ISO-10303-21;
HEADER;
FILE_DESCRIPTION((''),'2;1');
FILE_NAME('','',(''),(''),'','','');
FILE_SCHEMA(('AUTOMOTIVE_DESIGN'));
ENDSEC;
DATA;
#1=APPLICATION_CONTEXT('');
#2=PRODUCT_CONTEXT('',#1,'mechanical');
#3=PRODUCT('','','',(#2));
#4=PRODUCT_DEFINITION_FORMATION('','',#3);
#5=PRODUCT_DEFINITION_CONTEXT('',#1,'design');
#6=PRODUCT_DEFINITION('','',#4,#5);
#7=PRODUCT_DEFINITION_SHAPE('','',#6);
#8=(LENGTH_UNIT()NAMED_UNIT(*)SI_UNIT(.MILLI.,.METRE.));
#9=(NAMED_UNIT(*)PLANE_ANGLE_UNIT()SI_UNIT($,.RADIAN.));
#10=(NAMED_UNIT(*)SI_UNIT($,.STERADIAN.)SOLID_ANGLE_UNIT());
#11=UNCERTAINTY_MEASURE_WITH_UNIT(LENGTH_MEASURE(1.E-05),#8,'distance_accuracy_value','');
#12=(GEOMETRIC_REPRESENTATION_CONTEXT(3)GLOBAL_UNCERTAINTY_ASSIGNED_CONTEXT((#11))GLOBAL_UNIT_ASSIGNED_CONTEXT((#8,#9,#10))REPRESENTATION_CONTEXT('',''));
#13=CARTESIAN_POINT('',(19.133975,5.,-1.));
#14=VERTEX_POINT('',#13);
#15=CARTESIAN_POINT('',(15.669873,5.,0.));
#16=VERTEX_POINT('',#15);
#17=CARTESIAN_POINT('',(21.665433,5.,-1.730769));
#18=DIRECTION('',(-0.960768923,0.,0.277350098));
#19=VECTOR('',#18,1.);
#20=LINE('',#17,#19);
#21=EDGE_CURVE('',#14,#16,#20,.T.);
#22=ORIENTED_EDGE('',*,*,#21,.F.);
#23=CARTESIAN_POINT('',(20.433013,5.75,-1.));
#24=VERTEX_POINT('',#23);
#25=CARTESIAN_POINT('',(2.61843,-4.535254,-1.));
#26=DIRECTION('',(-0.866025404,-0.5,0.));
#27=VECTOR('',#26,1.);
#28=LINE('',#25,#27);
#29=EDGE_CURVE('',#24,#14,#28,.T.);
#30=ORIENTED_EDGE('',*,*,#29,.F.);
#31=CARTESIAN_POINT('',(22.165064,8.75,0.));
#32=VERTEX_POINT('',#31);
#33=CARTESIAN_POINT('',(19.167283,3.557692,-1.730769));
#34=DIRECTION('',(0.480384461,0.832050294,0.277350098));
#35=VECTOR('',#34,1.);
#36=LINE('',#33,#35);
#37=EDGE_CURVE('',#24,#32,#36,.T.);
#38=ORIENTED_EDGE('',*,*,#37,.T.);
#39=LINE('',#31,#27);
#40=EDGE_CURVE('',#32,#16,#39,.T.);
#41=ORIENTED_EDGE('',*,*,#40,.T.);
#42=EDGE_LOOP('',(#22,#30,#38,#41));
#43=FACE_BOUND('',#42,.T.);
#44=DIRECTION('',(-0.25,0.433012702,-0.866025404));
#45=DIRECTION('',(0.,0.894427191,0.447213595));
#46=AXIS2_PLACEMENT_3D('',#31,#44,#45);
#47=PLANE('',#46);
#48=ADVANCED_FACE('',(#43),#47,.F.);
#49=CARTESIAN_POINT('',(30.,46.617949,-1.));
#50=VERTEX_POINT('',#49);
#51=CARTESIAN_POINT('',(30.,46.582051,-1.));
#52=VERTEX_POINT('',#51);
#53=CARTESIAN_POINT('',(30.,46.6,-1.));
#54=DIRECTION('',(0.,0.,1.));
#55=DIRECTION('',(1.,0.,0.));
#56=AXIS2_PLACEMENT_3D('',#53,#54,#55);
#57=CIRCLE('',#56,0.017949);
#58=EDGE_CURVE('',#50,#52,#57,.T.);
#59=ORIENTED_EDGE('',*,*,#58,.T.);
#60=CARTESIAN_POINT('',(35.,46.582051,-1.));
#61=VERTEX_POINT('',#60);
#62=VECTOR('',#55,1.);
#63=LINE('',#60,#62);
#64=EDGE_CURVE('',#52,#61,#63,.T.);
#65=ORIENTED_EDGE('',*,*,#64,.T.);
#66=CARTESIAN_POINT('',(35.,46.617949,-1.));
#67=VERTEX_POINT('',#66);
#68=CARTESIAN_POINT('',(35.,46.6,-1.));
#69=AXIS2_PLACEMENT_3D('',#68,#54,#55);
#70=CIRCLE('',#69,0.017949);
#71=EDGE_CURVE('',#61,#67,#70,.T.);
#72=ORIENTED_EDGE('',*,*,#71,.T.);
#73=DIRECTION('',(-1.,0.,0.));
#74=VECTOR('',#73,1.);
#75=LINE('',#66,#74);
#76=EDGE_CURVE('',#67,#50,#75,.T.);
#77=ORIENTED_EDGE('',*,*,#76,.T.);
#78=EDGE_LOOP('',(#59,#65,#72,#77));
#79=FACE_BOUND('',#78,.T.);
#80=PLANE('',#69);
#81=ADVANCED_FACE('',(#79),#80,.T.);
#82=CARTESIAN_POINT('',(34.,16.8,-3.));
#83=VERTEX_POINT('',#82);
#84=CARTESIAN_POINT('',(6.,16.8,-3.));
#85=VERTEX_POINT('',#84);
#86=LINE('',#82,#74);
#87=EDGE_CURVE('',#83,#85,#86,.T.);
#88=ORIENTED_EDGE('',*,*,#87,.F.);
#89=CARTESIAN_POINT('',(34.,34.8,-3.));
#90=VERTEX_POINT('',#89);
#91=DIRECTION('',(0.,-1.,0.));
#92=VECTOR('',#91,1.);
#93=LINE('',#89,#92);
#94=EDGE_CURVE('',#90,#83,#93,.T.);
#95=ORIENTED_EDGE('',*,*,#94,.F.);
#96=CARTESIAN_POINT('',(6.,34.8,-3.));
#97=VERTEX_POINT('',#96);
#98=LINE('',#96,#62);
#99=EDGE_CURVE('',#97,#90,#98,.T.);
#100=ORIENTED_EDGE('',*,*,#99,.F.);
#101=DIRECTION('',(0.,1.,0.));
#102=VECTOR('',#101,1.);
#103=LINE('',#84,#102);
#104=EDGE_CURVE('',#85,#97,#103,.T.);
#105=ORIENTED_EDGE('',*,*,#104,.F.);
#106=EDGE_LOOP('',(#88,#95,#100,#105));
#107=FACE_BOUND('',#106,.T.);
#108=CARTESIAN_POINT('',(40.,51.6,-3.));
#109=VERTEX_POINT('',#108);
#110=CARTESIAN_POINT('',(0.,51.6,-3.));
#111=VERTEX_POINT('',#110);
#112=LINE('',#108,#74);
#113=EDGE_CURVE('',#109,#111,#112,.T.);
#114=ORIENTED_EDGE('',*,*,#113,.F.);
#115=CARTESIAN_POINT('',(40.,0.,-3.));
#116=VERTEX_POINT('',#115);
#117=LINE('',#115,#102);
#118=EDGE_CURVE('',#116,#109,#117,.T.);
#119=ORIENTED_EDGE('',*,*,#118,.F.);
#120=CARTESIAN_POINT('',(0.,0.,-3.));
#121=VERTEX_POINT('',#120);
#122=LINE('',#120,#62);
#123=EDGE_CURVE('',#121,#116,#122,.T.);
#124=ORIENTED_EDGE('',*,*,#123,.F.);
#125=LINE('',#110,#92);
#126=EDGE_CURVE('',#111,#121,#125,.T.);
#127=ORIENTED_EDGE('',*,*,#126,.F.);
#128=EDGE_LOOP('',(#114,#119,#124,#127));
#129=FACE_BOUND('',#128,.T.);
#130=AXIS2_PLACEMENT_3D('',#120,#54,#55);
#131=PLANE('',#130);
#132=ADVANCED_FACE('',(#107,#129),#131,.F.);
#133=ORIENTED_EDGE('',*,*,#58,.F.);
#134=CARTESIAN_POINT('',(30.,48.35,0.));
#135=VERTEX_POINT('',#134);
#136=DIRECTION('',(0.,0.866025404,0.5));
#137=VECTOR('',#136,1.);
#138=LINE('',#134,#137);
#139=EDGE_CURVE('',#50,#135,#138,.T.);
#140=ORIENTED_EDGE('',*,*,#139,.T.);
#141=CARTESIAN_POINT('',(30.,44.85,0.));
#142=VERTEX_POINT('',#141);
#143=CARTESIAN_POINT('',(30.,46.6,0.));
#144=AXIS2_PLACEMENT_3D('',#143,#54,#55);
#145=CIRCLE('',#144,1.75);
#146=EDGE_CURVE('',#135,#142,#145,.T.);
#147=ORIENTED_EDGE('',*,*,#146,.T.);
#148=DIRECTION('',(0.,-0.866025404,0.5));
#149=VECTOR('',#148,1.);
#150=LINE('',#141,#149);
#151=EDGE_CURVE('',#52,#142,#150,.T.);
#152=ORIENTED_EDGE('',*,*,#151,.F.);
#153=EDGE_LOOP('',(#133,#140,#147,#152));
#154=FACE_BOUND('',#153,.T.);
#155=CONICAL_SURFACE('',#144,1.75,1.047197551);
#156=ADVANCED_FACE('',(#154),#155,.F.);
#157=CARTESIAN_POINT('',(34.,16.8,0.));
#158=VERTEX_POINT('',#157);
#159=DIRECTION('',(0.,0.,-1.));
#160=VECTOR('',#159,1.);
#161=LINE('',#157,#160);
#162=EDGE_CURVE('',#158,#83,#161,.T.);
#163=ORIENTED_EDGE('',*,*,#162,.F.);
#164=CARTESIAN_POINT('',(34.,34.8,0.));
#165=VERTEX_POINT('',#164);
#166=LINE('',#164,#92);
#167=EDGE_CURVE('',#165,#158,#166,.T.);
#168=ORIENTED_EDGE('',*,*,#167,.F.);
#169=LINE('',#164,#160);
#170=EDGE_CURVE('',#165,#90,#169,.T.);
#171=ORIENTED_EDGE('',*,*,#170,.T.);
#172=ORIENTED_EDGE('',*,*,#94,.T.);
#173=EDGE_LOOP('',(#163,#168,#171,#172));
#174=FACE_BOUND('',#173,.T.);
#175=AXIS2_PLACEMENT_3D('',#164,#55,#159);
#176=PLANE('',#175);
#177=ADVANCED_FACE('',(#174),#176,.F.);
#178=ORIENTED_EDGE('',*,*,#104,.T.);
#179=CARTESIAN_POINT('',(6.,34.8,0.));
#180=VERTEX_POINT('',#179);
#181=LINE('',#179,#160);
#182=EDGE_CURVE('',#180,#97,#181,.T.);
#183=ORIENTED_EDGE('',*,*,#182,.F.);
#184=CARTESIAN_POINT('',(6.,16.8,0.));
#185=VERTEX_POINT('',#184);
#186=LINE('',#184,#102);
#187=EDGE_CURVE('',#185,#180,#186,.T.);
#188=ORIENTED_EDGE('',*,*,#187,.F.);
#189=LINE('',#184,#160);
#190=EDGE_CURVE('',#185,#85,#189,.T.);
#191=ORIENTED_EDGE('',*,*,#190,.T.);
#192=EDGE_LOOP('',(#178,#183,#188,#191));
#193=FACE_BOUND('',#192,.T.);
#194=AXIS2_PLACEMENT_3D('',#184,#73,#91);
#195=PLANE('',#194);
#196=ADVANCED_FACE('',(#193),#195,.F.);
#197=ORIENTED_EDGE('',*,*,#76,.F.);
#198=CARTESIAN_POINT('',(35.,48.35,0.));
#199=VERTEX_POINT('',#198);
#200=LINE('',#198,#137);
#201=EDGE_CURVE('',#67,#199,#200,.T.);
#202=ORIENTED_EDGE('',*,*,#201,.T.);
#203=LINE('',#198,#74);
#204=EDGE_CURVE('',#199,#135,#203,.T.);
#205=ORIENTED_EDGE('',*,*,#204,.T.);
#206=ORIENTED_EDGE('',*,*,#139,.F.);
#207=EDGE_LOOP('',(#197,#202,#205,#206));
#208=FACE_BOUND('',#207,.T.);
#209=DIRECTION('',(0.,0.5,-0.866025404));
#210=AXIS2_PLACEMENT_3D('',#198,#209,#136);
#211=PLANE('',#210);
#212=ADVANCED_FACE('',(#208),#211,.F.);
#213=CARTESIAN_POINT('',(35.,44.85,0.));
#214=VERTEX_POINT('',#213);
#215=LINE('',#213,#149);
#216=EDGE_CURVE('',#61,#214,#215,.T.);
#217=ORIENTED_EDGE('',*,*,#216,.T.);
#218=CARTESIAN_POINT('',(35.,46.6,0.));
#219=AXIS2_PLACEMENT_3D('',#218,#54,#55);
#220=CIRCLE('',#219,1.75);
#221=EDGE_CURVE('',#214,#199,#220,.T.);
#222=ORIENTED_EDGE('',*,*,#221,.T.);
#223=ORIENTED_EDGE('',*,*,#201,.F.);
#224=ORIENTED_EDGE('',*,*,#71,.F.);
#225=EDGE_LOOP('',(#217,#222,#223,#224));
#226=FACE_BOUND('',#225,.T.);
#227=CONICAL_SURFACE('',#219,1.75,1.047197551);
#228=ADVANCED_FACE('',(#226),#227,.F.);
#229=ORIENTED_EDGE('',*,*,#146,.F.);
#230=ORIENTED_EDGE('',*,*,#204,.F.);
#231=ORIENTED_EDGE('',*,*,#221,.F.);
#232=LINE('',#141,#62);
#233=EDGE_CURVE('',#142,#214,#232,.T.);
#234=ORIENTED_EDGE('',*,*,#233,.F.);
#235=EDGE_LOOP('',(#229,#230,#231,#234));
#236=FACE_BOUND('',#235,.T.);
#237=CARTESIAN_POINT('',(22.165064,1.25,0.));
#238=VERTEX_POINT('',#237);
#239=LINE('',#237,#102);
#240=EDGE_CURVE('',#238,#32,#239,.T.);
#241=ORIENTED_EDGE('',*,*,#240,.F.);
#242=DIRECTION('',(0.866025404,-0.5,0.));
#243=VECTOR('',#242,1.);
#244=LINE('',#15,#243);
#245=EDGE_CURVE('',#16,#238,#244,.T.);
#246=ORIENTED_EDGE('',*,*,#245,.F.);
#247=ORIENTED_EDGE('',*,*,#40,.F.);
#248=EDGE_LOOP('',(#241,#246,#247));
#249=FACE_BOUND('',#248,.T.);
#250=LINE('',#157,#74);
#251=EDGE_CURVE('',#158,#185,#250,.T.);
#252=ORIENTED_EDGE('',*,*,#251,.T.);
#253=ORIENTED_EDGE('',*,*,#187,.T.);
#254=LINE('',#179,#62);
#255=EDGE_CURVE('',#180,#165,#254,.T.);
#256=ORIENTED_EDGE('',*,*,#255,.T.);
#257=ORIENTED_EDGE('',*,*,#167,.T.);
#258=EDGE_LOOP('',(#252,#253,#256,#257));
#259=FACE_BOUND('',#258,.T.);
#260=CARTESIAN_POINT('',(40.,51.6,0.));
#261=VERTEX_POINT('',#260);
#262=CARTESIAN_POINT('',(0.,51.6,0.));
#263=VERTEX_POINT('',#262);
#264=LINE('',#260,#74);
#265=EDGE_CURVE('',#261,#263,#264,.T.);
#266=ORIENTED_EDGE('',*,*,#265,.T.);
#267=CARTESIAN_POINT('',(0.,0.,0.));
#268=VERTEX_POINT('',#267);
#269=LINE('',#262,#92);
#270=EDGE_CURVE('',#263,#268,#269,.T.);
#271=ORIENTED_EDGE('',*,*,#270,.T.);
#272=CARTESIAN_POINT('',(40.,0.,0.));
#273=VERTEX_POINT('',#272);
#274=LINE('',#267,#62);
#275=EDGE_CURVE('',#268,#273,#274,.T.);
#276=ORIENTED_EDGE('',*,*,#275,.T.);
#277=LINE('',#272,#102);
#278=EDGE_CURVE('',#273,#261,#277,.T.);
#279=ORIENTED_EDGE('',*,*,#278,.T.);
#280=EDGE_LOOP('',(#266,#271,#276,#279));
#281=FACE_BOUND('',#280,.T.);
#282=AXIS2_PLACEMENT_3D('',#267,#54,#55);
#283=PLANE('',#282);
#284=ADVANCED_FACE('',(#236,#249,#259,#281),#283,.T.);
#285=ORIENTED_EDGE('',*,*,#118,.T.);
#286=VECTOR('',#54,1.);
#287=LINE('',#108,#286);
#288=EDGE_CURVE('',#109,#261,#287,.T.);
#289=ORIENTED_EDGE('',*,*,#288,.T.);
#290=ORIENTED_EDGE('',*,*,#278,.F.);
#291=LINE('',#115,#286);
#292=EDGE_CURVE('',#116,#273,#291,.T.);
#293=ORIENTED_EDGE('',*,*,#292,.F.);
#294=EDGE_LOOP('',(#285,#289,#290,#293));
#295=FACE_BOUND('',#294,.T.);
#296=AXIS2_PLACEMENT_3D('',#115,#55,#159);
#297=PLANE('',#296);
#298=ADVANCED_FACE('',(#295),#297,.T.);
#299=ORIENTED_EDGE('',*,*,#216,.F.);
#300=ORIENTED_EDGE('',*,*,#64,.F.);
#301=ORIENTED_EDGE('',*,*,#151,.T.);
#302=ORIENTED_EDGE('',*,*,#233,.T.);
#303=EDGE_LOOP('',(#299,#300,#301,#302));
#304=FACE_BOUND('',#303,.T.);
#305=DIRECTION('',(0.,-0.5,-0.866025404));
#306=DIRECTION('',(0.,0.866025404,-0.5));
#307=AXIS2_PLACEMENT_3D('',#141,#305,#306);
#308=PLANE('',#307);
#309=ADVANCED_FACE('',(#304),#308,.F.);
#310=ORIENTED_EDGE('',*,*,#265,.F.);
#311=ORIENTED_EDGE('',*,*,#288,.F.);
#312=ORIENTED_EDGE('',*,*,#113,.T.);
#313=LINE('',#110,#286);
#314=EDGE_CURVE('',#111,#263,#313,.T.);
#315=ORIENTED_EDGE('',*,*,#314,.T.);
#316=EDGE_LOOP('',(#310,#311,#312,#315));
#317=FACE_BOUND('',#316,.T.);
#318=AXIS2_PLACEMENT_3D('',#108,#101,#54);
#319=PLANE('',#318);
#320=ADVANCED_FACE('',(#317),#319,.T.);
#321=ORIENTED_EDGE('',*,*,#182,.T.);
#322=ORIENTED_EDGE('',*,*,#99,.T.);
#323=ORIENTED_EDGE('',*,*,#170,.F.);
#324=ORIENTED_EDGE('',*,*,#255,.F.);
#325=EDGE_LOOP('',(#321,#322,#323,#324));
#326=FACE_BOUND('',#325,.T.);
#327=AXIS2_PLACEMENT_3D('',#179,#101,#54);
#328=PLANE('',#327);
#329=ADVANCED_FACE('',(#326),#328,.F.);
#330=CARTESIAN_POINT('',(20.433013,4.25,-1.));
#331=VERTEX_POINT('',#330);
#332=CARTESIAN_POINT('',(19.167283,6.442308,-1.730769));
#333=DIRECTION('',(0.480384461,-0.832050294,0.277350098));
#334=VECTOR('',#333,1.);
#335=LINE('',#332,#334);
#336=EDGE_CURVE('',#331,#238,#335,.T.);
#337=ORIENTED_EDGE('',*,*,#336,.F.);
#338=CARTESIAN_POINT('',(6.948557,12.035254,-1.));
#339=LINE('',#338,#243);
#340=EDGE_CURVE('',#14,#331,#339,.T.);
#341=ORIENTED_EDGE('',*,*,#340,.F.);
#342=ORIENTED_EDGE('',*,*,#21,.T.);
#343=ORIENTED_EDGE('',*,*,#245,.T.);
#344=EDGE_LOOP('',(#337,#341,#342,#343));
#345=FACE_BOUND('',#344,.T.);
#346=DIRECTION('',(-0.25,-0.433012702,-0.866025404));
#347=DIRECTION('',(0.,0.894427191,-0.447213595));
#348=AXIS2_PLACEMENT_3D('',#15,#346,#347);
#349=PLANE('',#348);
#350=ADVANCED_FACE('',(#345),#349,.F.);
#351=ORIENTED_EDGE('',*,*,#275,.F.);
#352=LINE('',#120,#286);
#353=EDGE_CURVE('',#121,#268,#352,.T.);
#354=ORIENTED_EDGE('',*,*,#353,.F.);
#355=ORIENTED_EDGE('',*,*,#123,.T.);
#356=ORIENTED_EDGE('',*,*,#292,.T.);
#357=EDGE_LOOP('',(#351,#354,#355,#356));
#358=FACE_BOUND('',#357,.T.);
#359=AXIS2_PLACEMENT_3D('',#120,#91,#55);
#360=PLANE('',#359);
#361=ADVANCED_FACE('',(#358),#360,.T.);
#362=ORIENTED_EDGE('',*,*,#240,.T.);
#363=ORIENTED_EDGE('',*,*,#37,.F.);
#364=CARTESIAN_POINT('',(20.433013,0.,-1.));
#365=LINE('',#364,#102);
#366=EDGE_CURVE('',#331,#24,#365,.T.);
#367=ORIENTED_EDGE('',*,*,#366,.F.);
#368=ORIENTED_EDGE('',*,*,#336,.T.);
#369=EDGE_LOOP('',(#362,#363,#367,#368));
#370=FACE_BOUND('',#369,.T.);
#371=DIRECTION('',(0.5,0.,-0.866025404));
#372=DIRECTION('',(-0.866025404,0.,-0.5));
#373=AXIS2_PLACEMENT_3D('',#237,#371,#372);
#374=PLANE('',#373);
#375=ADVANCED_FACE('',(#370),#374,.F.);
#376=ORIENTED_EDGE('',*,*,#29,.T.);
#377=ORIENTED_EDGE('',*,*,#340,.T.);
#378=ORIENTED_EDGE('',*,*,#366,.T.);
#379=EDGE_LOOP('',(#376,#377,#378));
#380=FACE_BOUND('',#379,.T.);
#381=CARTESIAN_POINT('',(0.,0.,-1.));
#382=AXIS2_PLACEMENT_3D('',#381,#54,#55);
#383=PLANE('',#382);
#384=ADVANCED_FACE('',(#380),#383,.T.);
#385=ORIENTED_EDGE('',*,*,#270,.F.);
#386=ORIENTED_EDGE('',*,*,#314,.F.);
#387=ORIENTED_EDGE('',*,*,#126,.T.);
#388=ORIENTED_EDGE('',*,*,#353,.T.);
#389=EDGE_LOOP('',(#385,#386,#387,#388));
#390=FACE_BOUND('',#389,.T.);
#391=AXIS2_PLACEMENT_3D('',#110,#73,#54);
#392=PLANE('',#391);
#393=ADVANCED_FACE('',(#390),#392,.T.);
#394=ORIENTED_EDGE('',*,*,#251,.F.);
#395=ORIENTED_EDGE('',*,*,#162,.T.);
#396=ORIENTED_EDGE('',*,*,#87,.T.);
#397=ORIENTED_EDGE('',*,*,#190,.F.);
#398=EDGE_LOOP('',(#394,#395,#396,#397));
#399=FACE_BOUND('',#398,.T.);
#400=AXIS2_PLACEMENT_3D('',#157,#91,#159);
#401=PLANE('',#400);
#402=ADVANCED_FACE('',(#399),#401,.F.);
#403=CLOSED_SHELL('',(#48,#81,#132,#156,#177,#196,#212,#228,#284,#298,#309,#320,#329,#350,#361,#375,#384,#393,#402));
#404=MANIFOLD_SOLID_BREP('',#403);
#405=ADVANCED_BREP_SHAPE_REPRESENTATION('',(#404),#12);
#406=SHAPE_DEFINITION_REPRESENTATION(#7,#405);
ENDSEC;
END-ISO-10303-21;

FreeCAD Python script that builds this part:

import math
import FreeCAD as App
import Part
import Sketcher
from FreeCAD import Vector
Q = App.Units.Quantity


def faces_at(feature, points):
    """Names of the faces that lie closest to the given points."""
    faces = feature.Shape.Faces
    near = lambda p: min(range(len(faces)), key=lambda i: faces[i].distToShape(Part.Vertex(*p))[0])
    return sorted({f"Face{near(p) + 1}" for p in points})

doc = App.newDocument("Part")
params = doc.addObject("Spreadsheet::Sheet", "Params")
for row, (alias, value) in enumerate([
    ("sketch1_width", "40 mm"),
    ("sketch1_height", "51.6 mm"),
    ("pad1_length", "3 mm"),
    ("sketch2_width", "28 mm"),
    ("sketch2_height", "18 mm"),
    ("sketch3_width", "5 mm"),
    ("sketch3_radius", "1.75 mm"),
    ("pad2_length", "1 mm"),
    ("draft_angle", "60 deg"),
    ("sketch4_height", "7.5 mm"),
    ("pad3_length", "1 mm"),
    ("draft2_angle", "60 deg"),
], start=1):
    params.set(f"A{row}", alias)
    params.set(f"B{row}", "=" + value)
    params.setAlias(f"B{row}", alias)

body = doc.addObject("PartDesign::Body", "Body")

# Sketch on XY plane
sketch1 = body.newObject("Sketcher::SketchObject", "Sketch")
sketch1.AttachmentSupport = (doc.getObject("XY_Plane"), [""])
sketch1.MapMode = "FlatFace"
sketch1.addGeometry([
    Part.LineSegment(Vector(0, 52, 0), Vector(0, 0, 0)),
    Part.LineSegment(Vector(0, 0, 0), Vector(40, 0, 0)),
    Part.LineSegment(Vector(40, 0, 0), Vector(40, 52, 0)),
    Part.LineSegment(Vector(40, 52, 0), Vector(0, 52, 0)),
], False)
sketch1.addConstraint([
    Sketcher.Constraint("Coincident", 0, 2, 1, 1),
    Sketcher.Constraint("Coincident", 1, 2, 2, 1),
    Sketcher.Constraint("Coincident", 2, 2, 3, 1),
    Sketcher.Constraint("Coincident", 3, 2, 0, 1),
    Sketcher.Constraint("Vertical", 0),
    Sketcher.Constraint("Horizontal", 1),
    Sketcher.Constraint("Vertical", 2),
    Sketcher.Constraint("Horizontal", 3),
    Sketcher.Constraint("Coincident", 0, 2, -1, 1),
    Sketcher.Constraint("DistanceX", 1, 1, 1, 2, Q("40 mm")),
    Sketcher.Constraint("DistanceY", 0, 2, 0, 1, Q("51.6 mm")),
])
sketch1.setExpression("Constraints[9]", "Params.sketch1_width")
sketch1.setExpression("Constraints[10]", "Params.sketch1_height")
pad1 = body.newObject("PartDesign::Pad", "Pad")
pad1.Profile = sketch1
pad1.setExpression("Length", "Params.pad1_length")
pad1.Reversed = True

# Sketch on XY plane
sketch2 = body.newObject("Sketcher::SketchObject", "Sketch001")
sketch2.AttachmentSupport = (doc.getObject("XY_Plane"), [""])
sketch2.MapMode = "FlatFace"
sketch2.AttachmentOffset = App.Placement(Vector(0, 0, -3), App.Rotation())
sketch2.addGeometry([
    Part.LineSegment(Vector(34, 35, 0), Vector(34, 17, 0)),
    Part.LineSegment(Vector(34, 17, 0), Vector(6, 17, 0)),
    Part.LineSegment(Vector(6, 17, 0), Vector(6, 35, 0)),
    Part.LineSegment(Vector(6, 35, 0), Vector(34, 35, 0)),
], False)
sketch2.addConstraint([
    Sketcher.Constraint("Coincident", 0, 2, 1, 1),
    Sketcher.Constraint("Coincident", 1, 2, 2, 1),
    Sketcher.Constraint("Coincident", 2, 2, 3, 1),
    Sketcher.Constraint("Coincident", 3, 2, 0, 1),
    Sketcher.Constraint("Vertical", 0),
    Sketcher.Constraint("Horizontal", 1),
    Sketcher.Constraint("Vertical", 2),
    Sketcher.Constraint("Horizontal", 3),
    Sketcher.Constraint("DistanceX", 1, 2, 1, 1, Q("28 mm")),
    Sketcher.Constraint("DistanceY", 0, 2, 0, 1, Q("18 mm")),
    Sketcher.Constraint("DistanceX", -1, 1, 0, 2, Q("34 mm")),
    Sketcher.Constraint("DistanceY", -1, 1, 0, 2, Q("16.8 mm")),
])
sketch2.setExpression("Constraints[8]", "Params.sketch2_width")
sketch2.setExpression("Constraints[9]", "Params.sketch2_height")
pocket1 = body.newObject("PartDesign::Pocket", "Pocket")
pocket1.Profile = sketch2
pocket1.Type = "ThroughAll"
pocket1.Reversed = True
body2 = doc.addObject("PartDesign::Body", "Body001")

# Sketch on XY plane
sketch3 = body2.newObject("Sketcher::SketchObject", "Sketch002")
sketch3.AttachmentSupport = (doc.getObject("XY_Plane001"), [""])
sketch3.MapMode = "FlatFace"
sketch3.addGeometry([
    Part.LineSegment(Vector(35, 48.4, 0), Vector(30, 48.4, 0)),
    Part.ArcOfCircle(Part.Circle(Vector(30, 46.6, 0), Vector(0, 0, 1), 1.8), math.radians(90), math.radians(270)),
    Part.LineSegment(Vector(30, 44.9, 0), Vector(35, 44.9, 0)),
    Part.ArcOfCircle(Part.Circle(Vector(35, 46.6, 0), Vector(0, 0, 1), 1.8), math.radians(-90), math.radians(90)),
], False)
sketch3.addConstraint([
    Sketcher.Constraint("Tangent", 0, 2, 1, 1),
    Sketcher.Constraint("Tangent", 1, 2, 2, 1),
    Sketcher.Constraint("Tangent", 2, 2, 3, 1),
    Sketcher.Constraint("Tangent", 3, 2, 0, 1),
    Sketcher.Constraint("Horizontal", 0),
    Sketcher.Constraint("Horizontal", 2),
    Sketcher.Constraint("DistanceX", 0, 2, 0, 1, Q("5 mm")),
    Sketcher.Constraint("Radius", 1, Q("1.75 mm")),
    Sketcher.Constraint("DistanceX", -1, 1, 1, 3, Q("30 mm")),
    Sketcher.Constraint("DistanceY", -1, 1, 1, 3, Q("46.6 mm")),
])
sketch3.setExpression("Constraints[6]", "Params.sketch3_width")
sketch3.setExpression("Constraints[7]", "Params.sketch3_radius")
pad2 = body2.newObject("PartDesign::Pad", "Pad001")
pad2.Profile = sketch3
pad2.setExpression("Length", "Params.pad2_length")
pad2.Reversed = True
doc.recompute()

draft = body2.newObject("PartDesign::Draft", "Draft")
draft.Base = (pad2, faces_at(pad2, [
    (32.5, 48.35, -0.5),
    (28.25, 46.6, -0.5),
    (32.5, 44.85, -0.5),
    (36.75, 46.6, -0.5),
]))
draft.NeutralPlane = (doc.getObject("XY_Plane001"), [""])
draft.setExpression("Angle", "Params.draft_angle")
draft.Reversed = True
doc.recompute()

boolean = body.newObject("PartDesign::Boolean", "Boolean")
boolean.Type = "Cut"
boolean.addObjects([body2])
body3 = doc.addObject("PartDesign::Body", "Body002")

# Sketch on XY plane
sketch4 = body3.newObject("Sketcher::SketchObject", "Sketch003")
sketch4.AttachmentSupport = (doc.getObject("XY_Plane002"), [""])
sketch4.MapMode = "FlatFace"
sketch4.addGeometry([
    Part.LineSegment(Vector(16, 5, 0), Vector(22, 1, 0)),
    Part.LineSegment(Vector(22, 1, 0), Vector(22, 9, 0)),
    Part.LineSegment(Vector(22, 9, 0), Vector(16, 5, 0)),
], False)
sketch4.addConstraint([
    Sketcher.Constraint("Coincident", 0, 2, 1, 1),
    Sketcher.Constraint("Coincident", 1, 2, 2, 1),
    Sketcher.Constraint("Coincident", 2, 2, 0, 1),
    Sketcher.Constraint("Vertical", 1),
    Sketcher.Constraint("Equal", 0, 2),
    Sketcher.Constraint("Angle", 0, Q("-30 deg")),
    Sketcher.Constraint("DistanceY", 1, 1, 1, 2, Q("7.5 mm")),
    Sketcher.Constraint("DistanceY", -1, 1, 2, 2, Q("5 mm")),
    Sketcher.Constraint("DistanceX", -1, 1, 0, 2, Q("22.165064 mm")),
])
sketch4.setExpression("Constraints[6]", "Params.sketch4_height")
pad3 = body3.newObject("PartDesign::Pad", "Pad002")
pad3.Profile = sketch4
pad3.setExpression("Length", "Params.pad3_length")
pad3.Reversed = True
doc.recompute()

draft2 = body3.newObject("PartDesign::Draft", "Draft001")
draft2.Base = (pad3, faces_at(pad3, [(18.917, 3.125, -0.5), (22.165, 5, -0.5), (18.917, 6.875, -0.5)]))
draft2.NeutralPlane = (doc.getObject("XY_Plane002"), [""])
draft2.setExpression("Angle", "Params.draft2_angle")
draft2.Reversed = True
doc.recompute()

boolean2 = body.newObject("PartDesign::Boolean", "Boolean001")
boolean2.Type = "Cut"
boolean2.addObjects([body3])

doc.recompute()
